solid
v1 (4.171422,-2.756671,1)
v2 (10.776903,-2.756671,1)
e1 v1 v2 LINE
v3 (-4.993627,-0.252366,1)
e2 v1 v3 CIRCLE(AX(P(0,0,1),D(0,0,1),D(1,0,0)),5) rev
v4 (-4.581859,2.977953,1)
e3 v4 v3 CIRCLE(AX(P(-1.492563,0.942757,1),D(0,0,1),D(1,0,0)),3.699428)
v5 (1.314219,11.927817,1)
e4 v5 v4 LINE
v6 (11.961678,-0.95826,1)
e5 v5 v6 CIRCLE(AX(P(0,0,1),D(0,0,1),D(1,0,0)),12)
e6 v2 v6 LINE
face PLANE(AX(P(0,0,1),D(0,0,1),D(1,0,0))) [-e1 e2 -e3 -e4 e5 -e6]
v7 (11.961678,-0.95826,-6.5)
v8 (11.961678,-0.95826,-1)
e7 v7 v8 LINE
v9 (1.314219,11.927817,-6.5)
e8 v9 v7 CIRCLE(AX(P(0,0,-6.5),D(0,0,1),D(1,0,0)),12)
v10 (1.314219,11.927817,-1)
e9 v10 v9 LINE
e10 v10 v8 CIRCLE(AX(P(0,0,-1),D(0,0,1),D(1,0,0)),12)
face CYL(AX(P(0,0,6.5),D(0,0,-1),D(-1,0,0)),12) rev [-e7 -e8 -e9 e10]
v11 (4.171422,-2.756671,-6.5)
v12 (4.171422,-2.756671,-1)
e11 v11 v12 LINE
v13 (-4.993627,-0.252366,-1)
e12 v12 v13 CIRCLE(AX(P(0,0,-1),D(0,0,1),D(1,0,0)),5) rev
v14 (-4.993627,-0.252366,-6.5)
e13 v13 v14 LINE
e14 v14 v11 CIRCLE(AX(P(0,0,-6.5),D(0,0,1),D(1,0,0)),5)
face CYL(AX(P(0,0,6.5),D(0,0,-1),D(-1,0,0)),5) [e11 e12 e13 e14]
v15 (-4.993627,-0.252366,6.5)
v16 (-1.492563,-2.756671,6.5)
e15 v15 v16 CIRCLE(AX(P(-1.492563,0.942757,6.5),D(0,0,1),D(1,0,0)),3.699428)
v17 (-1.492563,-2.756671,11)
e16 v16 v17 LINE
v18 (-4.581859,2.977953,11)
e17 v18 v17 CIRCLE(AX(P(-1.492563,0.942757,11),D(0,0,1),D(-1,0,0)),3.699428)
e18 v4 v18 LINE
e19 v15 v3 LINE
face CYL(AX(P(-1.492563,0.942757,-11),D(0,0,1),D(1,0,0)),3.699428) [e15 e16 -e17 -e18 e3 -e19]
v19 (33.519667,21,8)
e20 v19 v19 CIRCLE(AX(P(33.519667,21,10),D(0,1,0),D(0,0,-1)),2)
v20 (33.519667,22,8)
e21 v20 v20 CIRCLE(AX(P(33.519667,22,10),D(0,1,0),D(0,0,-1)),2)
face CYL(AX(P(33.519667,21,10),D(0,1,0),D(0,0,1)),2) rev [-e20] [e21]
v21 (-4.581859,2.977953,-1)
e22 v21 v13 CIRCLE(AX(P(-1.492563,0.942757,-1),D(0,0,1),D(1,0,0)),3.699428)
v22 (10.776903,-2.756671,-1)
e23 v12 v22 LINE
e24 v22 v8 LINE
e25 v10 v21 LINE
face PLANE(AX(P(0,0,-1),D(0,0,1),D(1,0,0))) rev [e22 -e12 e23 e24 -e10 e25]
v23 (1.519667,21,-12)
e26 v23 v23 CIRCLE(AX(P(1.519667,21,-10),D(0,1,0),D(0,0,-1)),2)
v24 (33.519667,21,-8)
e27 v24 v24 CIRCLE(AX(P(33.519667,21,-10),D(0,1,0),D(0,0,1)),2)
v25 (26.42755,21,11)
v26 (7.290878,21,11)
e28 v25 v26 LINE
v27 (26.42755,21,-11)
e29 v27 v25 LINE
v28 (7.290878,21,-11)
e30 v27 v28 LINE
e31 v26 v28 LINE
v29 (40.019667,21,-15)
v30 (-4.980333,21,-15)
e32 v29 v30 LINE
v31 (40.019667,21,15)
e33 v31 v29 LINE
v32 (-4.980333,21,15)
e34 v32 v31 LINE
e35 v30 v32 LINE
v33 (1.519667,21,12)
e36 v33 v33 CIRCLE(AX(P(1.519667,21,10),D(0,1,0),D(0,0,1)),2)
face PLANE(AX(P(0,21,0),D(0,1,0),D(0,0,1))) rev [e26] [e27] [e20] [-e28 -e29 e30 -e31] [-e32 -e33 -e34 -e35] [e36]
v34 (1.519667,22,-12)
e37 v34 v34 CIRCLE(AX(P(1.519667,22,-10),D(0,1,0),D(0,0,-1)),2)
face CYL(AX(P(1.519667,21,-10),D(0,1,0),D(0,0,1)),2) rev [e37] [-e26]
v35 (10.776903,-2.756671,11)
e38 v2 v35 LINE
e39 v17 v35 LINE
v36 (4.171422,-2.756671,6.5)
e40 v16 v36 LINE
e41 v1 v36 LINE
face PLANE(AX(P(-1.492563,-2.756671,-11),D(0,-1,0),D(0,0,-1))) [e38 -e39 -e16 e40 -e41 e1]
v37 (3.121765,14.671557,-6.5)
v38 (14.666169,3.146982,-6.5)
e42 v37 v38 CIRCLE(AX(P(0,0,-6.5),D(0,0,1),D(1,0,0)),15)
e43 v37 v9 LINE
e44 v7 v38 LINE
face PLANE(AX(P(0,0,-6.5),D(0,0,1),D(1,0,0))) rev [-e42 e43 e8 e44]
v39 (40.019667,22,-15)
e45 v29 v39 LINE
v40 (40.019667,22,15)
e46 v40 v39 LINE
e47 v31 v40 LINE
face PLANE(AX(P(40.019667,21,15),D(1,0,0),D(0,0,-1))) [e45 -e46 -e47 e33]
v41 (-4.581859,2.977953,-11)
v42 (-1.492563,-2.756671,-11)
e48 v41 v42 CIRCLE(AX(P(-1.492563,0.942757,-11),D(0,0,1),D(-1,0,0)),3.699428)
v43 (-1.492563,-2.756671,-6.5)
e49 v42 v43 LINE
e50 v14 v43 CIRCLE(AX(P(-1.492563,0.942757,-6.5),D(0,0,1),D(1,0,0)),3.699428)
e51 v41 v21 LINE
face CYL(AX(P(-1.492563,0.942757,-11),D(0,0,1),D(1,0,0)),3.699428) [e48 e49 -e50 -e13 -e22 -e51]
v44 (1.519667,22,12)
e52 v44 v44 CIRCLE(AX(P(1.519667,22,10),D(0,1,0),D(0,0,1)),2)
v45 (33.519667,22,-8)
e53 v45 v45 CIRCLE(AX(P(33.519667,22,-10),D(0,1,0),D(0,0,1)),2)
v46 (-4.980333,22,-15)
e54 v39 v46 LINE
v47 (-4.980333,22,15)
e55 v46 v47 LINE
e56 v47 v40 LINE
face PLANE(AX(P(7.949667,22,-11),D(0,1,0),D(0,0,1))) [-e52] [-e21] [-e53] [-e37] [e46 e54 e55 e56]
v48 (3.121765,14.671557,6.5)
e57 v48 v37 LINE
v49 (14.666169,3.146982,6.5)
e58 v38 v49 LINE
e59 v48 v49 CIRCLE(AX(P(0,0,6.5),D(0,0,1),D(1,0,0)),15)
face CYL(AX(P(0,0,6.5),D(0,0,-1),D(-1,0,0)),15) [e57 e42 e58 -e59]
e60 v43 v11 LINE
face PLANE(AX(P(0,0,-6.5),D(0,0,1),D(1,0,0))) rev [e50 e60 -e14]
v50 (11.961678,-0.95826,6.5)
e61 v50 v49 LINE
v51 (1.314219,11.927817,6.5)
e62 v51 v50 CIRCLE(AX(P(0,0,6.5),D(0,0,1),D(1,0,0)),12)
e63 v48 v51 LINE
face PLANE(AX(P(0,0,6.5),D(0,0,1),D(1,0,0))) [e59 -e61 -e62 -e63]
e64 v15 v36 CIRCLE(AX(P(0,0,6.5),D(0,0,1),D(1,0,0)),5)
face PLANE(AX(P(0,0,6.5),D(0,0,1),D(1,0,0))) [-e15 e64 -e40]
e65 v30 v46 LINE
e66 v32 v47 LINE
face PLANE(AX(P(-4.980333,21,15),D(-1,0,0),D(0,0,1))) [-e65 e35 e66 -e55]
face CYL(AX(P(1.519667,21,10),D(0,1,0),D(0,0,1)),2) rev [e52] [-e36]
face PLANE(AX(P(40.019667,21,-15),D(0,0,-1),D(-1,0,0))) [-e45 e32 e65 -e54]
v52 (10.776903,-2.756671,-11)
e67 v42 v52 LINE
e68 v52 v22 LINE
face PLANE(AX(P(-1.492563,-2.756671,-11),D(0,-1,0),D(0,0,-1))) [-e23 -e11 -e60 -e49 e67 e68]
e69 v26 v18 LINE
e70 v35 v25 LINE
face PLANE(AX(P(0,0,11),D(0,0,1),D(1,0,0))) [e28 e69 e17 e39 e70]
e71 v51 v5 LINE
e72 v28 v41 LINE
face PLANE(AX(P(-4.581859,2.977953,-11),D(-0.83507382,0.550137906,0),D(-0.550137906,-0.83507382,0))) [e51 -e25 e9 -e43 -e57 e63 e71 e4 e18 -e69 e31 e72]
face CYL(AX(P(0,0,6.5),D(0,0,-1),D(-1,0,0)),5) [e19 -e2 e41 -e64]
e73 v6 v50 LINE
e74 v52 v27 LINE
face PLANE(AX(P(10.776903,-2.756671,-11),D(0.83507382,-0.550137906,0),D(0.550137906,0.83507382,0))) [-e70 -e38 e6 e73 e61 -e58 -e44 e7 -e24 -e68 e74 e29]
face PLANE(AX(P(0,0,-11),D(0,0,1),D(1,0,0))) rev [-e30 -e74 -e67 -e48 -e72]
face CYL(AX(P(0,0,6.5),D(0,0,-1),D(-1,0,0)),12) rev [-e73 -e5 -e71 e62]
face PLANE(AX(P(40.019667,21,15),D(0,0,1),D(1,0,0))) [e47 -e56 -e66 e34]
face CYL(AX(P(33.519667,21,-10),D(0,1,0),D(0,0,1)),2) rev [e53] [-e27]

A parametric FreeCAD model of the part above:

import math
import FreeCAD as App
import Part
import Sketcher

doc = App.newDocument("Part")
body = doc.addObject("PartDesign::Body", "Body")

# Sketch on XY plane
sketch1 = doc.addObject("Sketcher::SketchObject", "Sketch")
body.addObject(sketch1)
sketch1.AttachmentSupport = (doc.XY_Plane, [""])
sketch1.MapMode = "FlatFace"
sketch1.addGeometry([
    Part.Circle(App.Vector(0, 0, 0), App.Vector(0, 0, 1), 15),
    Part.Circle(App.Vector(0, 0, 0), App.Vector(0, 0, 1), 12),
], False)
sketch1.addConstraint([
    Sketcher.Constraint("Coincident", 0, 3, -1, 1),
    Sketcher.Constraint("Coincident", 1, 3, -1, 1),
    Sketcher.Constraint("Diameter", 0, 30.0),
    Sketcher.Constraint("Diameter", 1, 24.0),
])
pad1 = doc.addObject("PartDesign::Pad", "Pad")
body.addObject(pad1)
pad1.Profile = sketch1
pad1.Length = 13
pad1.Midplane = True
body2 = doc.addObject("PartDesign::Body", "Body001")

# Sketch on XY plane
sketch2 = doc.addObject("Sketcher::SketchObject", "Sketch001")
body2.addObject(sketch2)
sketch2.AttachmentSupport = (doc.getObject("XY_Plane001"), [""])
sketch2.MapMode = "FlatFace"
sketch2.addGeometry(Part.Circle(App.Vector(0, 0, 0), App.Vector(0, 0, 1), 5), False)
sketch2.addConstraint([
    Sketcher.Constraint("Coincident", 0, 3, -1, 1),
    Sketcher.Constraint("Diameter", 0, 10.0),
])
pad2 = doc.addObject("PartDesign::Pad", "Pad001")
body2.addObject(pad2)
pad2.Profile = sketch2
pad2.Length = 13
pad2.Midplane = True
body.AllowCompound = True
doc.recompute()

boolean = doc.addObject("PartDesign::Boolean", "Boolean")
body.addObject(boolean)
boolean.Type = "Fuse"
boolean.addObjects([body2])

# Sketch on XY plane
sketch3 = doc.addObject("Sketcher::SketchObject", "Sketch002")
body.addObject(sketch3)
sketch3.AttachmentSupport = (doc.XY_Plane, [""])
sketch3.MapMode = "FlatFace"
sketch3.addGeometry(Part.Circle(App.Vector(0, 0, 0), App.Vector(0, 0, 1), 12), False)
sketch3.addConstraint([
    Sketcher.Constraint("Coincident", 0, 3, -1, 1),
    Sketcher.Constraint("Diameter", 0, 25.0),
])
pad3 = doc.addObject("PartDesign::Pad", "Pad002")
body.addObject(pad3)
pad3.Profile = sketch3
pad3.Length = 2
pad3.Midplane = True

# Sketch on XY plane
sketch4 = doc.addObject("Sketcher::SketchObject", "Sketch003")
body.addObject(sketch4)
sketch4.AttachmentSupport = (doc.XY_Plane, [""])
sketch4.MapMode = "FlatFace"
sketch4.addGeometry(Part.Circle(App.Vector(0, 0, 0), App.Vector(0, 0, 1), 2), False)
sketch4.addConstraint([
    Sketcher.Constraint("Coincident", 0, 3, -1, 1),
    Sketcher.Constraint("Diameter", 0, 4.0),
])
pad4 = doc.addObject("PartDesign::Pad", "Pad003")
body.addObject(pad4)
pad4.Profile = sketch4
pad4.Length = 22
pad4.Midplane = True

# Sketch on XY plane
sketch5 = doc.addObject("Sketcher::SketchObject", "Sketch004")
body.addObject(sketch5)
sketch5.AttachmentSupport = (doc.XY_Plane, [""])
sketch5.MapMode = "FlatFace"
sketch5.AttachmentOffset = App.Placement(App.Vector(0, 0, 11), App.Rotation())
sketch5.addGeometry([
    Part.LineSegment(App.Vector(7.9, 22, 0), App.Vector(-4.6, 3, 0)),  # 0
    Part.ArcOfCircle(Part.Circle(App.Vector(-1.5, 0.9, 0), App.Vector(0, 0, 1), 3.7), math.radians(147), math.radians(270)),  # 1
    Part.LineSegment(App.Vector(-1.5, -2.8, 0), App.Vector(10.8, -2.8, 0)),  # 2
    Part.LineSegment(App.Vector(10.8, -2.8, 0), App.Vector(27.1, 22, 0)),  # 3
    Part.LineSegment(App.Vector(27.1, 22, 0), App.Vector(7.9, 22, 0)),  # 4
], False)
sketch5.addConstraint([
    Sketcher.Constraint("Tangent", 0, 2, 1, 1),
    Sketcher.Constraint("Tangent", 1, 2, 2, 1),
    Sketcher.Constraint("Coincident", 2, 2, 3, 1),
    Sketcher.Constraint("Coincident", 3, 2, 4, 1),
    Sketcher.Constraint("Coincident", 4, 2, 0, 1),
    Sketcher.Constraint("Horizontal", 2),
    Sketcher.Constraint("Horizontal", 4),
    Sketcher.Constraint("Parallel", 0, 3),
    Sketcher.Constraint("DistanceY", -1, 1, 3, 2, 22.0),
    Sketcher.Constraint("Radius", 1, 3.699428),
    Sketcher.Constraint("DistanceX", 0, 2, 3, 2, 31.668198),
    Sketcher.Constraint("Distance", 0, 22.778881),
    Sketcher.Constraint("DistanceX", 2, 1, 2, 2, 12.269466),
    Sketcher.Constraint("DistanceX", 0, 2, -1, 1, 4.581859),
])
pad5 = doc.addObject("PartDesign::Pad", "Pad004")
body.addObject(pad5)
pad5.Profile = sketch5
pad5.Length = 22
pad5.Reversed = True

# Sketch on XZ plane
sketch6 = doc.addObject("Sketcher::SketchObject", "Sketch005")
body.addObject(sketch6)
sketch6.AttachmentSupport = (doc.XZ_Plane, [""])
sketch6.MapMode = "FlatFace"
sketch6.AttachmentOffset = App.Placement(App.Vector(0, 0, -22), App.Rotation())
sketch6.addGeometry([
    Part.LineSegment(App.Vector(-5, -15, 0), App.Vector(-5, 15, 0)),  # 0
    Part.LineSegment(App.Vector(-5, 15, 0), App.Vector(40, 15, 0)),  # 1
    Part.LineSegment(App.Vector(40, 15, 0), App.Vector(40, -15, 0)),  # 2
    Part.LineSegment(App.Vector(40, -15, 0), App.Vector(-5, -15, 0)),  # 3
    Part.Circle(App.Vector(1.5, 10, 0), App.Vector(0, 0, 1), 2),  # 4
    Part.Circle(App.Vector(33.5, 10, 0), App.Vector(0, 0, 1), 2),  # 5
    Part.Circle(App.Vector(1.5, -10, 0), App.Vector(0, 0, 1), 2),  # 6
    Part.Circle(App.Vector(33.5, -10, 0), App.Vector(0, 0, 1), 2),  # 7
], False)
sketch6.addConstraint([
    Sketcher.Constraint("Coincident", 0, 2, 1, 1),
    Sketcher.Constraint("Coincident", 1, 2, 2, 1),
    Sketcher.Constraint("Coincident", 2, 2, 3, 1),
    Sketcher.Constraint("Coincident", 3, 2, 0, 1),
    Sketcher.Constraint("Vertical", 0),
    Sketcher.Constraint("Horizontal", 1),
    Sketcher.Constraint("Vertical", 2),
    Sketcher.Constraint("Horizontal", 3),
    Sketcher.Constraint("Equal", 4, 5),
    Sketcher.Constraint("Equal", 5, 6),
    Sketcher.Constraint("Equal", 6, 7),
    Sketcher.Constraint("Symmetric", 4, 3, 6, 3, -1),
    Sketcher.Constraint("Symmetric", 5, 3, 7, 3, -1),
    Sketcher.Constraint("Horizontal", 4, 3, 5, 3),
    Sketcher.Constraint("Diameter", 4, 4.0),
    Sketcher.Constraint("DistanceX", 1, 1, 1, 2, 45.0),
    Sketcher.Constraint("DistanceY", 0, 1, 0, 2, 30.0),
    Sketcher.Constraint("DistanceY", -1, 1, 4, 3, 10.0),
    Sketcher.Constraint("DistanceY", -1, 1, 0, 2, 15.0),
    Sketcher.Constraint("DistanceX", 4, 3, 5, 3, 32.0),
    Sketcher.Constraint("DistanceX", 0, 2, 4, 3, 6.5),
    Sketcher.Constraint("DistanceX", -1, 1, 4, 3, 1.519667),
])
pad6 = doc.addObject("PartDesign::Pad", "Pad005")
body.addObject(pad6)
pad6.Profile = sketch6
pad6.Length = 1

doc.recompute()
